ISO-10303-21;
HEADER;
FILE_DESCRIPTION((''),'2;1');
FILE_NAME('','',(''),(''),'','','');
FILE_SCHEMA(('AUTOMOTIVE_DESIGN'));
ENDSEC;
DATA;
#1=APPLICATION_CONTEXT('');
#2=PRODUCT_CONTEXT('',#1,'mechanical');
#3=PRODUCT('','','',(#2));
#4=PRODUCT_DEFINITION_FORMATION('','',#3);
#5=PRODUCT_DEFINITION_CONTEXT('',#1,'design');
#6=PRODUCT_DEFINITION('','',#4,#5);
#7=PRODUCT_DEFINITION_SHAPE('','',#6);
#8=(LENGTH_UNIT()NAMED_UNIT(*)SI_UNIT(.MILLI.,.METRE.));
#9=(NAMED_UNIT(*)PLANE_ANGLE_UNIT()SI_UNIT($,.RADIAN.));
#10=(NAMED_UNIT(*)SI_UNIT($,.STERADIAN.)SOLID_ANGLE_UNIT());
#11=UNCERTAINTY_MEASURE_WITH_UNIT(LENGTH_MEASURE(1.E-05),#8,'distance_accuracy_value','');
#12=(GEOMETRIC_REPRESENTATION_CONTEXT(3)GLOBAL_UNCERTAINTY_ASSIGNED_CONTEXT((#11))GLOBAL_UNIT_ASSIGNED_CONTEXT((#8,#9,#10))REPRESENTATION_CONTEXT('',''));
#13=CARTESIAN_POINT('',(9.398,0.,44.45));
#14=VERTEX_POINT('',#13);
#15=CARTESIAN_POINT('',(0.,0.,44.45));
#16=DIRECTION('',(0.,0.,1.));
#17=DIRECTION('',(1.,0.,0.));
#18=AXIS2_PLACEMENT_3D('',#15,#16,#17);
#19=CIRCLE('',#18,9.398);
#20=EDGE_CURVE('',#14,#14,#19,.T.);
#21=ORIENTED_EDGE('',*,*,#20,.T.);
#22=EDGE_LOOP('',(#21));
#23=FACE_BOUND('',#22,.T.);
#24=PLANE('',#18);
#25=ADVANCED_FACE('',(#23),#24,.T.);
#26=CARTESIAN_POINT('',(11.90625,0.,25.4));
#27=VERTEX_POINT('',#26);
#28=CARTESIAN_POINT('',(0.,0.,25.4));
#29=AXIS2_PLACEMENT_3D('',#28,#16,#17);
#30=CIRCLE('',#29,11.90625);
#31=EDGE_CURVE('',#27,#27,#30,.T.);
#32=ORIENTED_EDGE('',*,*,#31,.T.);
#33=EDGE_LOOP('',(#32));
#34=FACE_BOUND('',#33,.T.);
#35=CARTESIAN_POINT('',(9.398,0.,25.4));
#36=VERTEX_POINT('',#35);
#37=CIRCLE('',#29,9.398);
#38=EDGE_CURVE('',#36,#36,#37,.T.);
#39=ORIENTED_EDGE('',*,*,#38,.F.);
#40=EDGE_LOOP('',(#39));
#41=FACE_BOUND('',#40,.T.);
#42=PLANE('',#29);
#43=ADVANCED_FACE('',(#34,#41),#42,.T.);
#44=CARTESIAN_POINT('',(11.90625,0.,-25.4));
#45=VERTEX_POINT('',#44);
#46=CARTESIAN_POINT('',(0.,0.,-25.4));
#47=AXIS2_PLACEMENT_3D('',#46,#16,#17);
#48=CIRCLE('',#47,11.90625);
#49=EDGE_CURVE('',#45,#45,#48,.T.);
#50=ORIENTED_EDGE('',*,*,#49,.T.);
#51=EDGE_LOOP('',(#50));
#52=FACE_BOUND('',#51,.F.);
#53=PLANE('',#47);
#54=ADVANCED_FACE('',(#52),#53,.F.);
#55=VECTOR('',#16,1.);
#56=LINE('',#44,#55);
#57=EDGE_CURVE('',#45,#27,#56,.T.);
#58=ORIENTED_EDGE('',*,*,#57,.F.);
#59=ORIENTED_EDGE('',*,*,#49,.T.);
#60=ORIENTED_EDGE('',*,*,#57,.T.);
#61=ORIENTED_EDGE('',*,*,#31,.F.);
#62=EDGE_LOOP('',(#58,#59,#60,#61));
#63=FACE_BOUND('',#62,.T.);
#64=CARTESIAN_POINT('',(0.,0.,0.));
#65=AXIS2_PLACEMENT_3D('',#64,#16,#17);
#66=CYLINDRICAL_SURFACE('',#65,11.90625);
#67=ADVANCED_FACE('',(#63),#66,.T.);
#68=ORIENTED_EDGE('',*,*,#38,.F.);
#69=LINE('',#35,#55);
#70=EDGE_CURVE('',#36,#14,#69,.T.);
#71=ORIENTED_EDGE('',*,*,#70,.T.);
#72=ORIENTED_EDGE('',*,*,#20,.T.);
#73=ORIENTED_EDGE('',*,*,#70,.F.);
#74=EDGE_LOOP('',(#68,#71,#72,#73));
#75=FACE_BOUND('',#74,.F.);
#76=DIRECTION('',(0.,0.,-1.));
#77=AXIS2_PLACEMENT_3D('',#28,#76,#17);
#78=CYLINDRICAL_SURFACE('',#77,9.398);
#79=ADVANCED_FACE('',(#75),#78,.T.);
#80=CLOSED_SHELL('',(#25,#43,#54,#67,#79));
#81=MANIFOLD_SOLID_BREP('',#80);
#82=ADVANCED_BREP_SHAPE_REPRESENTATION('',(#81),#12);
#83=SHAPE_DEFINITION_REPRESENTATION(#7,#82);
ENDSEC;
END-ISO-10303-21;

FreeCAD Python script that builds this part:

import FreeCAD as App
import Part
import Sketcher
from FreeCAD import Vector
Q = App.Units.Quantity

doc = App.newDocument("Part")
body = doc.addObject("PartDesign::Body", "Body")

sketch1 = body.newObject("Sketcher::SketchObject", "Sketch")
sketch1.AttachmentSupport = (doc.getObject("XY_Plane"), [""])
sketch1.MapMode = "FlatFace"
sketch1.addGeometry(Part.Circle(Vector(0, 0, 0), Vector(0, 0, 1), 12), False)
sketch1.addConstraint([
    Sketcher.Constraint("Coincident", 0, 3, -1, 1),
    Sketcher.Constraint("Diameter", 0, Q("0.9375 in")),
])
pad1 = body.newObject("PartDesign::Pad", "Pad")
pad1.Profile = sketch1
pad1.Length = Q("2 in")
pad1.Midplane = True

sketch2 = body.newObject("Sketcher::SketchObject", "Sketch001")
sketch2.AttachmentSupport = (doc.getObject("XY_Plane"), [""])
sketch2.MapMode = "FlatFace"
sketch2.AttachmentOffset = App.Placement(Vector(0, 0, 1 * 25.4), App.Rotation())
sketch2.addGeometry(Part.Circle(Vector(0, 0, 0), Vector(0, 0, 1), 9), False)
sketch2.addConstraint([
    Sketcher.Constraint("Coincident", 0, 3, -1, 1),
    Sketcher.Constraint("Diameter", 0, Q("0.74 in")),
])
pad2 = body.newObject("PartDesign::Pad", "Pad001")
pad2.Profile = sketch2
pad2.Length = Q("0.75 in")

doc.recompute()
